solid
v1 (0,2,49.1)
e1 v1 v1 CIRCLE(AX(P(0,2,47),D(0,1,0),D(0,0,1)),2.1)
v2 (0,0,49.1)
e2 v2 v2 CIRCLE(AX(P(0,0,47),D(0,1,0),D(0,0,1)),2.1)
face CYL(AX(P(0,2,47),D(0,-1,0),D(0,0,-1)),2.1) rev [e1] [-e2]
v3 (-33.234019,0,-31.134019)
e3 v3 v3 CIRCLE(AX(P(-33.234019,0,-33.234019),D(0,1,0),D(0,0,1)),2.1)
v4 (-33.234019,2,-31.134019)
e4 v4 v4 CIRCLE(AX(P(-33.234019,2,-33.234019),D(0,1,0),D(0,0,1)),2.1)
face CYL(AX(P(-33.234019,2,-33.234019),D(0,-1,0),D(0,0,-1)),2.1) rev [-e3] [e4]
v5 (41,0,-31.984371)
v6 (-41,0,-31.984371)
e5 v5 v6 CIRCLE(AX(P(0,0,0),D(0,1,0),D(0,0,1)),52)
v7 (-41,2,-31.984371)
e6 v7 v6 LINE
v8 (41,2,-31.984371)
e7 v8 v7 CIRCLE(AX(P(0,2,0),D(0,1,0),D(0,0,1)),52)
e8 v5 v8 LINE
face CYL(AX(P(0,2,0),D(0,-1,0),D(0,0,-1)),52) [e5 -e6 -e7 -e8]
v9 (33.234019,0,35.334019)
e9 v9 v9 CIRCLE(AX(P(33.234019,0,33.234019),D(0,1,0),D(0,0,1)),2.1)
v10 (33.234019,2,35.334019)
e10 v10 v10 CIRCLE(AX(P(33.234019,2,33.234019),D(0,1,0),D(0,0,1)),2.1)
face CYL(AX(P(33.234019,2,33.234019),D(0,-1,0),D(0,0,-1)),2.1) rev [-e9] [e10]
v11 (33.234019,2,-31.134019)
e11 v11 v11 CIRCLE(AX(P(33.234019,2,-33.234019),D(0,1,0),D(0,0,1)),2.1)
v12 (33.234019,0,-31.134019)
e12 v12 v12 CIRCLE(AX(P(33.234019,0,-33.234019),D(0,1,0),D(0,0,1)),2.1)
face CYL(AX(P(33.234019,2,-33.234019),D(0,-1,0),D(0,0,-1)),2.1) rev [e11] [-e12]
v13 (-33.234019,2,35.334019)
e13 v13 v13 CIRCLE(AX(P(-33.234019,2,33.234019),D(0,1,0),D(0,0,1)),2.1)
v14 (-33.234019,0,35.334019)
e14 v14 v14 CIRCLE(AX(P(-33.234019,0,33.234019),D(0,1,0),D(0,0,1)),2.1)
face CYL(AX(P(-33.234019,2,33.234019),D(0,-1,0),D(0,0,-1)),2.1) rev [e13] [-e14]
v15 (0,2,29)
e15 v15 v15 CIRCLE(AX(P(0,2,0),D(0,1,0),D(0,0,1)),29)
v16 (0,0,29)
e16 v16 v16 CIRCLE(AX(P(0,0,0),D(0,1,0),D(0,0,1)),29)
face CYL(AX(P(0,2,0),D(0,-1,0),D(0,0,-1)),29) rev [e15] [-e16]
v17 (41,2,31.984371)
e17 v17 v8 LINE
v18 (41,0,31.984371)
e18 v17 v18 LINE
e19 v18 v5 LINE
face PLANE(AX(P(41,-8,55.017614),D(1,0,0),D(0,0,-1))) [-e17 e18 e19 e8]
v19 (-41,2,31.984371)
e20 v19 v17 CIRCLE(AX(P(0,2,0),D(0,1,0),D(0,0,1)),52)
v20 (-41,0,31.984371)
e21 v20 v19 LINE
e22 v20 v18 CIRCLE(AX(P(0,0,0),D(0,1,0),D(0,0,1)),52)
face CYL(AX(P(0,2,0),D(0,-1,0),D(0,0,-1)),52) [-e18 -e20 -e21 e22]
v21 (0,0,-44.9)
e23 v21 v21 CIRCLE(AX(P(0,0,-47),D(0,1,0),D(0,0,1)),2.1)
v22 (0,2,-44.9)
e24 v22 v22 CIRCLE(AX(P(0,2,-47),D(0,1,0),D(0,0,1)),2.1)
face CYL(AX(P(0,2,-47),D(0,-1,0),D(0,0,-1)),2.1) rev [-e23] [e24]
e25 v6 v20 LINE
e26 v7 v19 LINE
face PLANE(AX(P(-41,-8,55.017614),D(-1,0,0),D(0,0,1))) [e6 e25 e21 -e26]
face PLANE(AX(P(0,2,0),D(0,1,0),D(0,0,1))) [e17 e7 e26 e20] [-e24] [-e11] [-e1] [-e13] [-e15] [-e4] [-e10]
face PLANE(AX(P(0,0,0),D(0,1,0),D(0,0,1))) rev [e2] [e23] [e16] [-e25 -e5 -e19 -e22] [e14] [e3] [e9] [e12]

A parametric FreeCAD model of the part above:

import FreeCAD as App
import Part
import Sketcher

V = App.Vector
Q = App.Units.Quantity

doc = App.newDocument("Part")
params = doc.addObject("Spreadsheet::Sheet", "Params")
for row, (alias, value) in enumerate([
    ("sketch1_diameter", "104 mm"),
    ("sketch1_diameter2", "58 mm"),
    ("sketch1_diameter3", "4.2 mm"),
    ("pad1_length", "2 mm"),
    ("sketch2_width", "182 mm"),
    ("sketch2_width2", "82 mm"),
    ("pocket1_length", "10 mm"),
], start=1):
    params.set(f"A{row}", alias)
    params.set(f"B{row}", "=" + value)
    params.setAlias(f"B{row}", alias)

body = doc.addObject("PartDesign::Body", "Body")

# Sketch on XZ plane
sketch1 = body.newObject("Sketcher::SketchObject", "Sketch")
sketch1.AttachmentSupport = (doc.getObject("XZ_Plane"), [""])
sketch1.MapMode = "FlatFace"
sketch1.addGeometry([
    Part.Circle(V(0, 0, 0), V(0, 0, 1), 52),  # 0
    Part.Circle(V(-33.2, -33.2, 0), V(0, 0, 1), 2.1),  # 1
    Part.Circle(V(0, -47, 0), V(0, 0, 1), 2.1),  # 2
    Part.Circle(V(-47, 0, 0), V(0, 0, 1), 2.1),  # 3
    Part.Circle(V(-33.2, 33.2, 0), V(0, 0, 1), 2.1),  # 4
    Part.Circle(V(33.2, -33.2, 0), V(0, 0, 1), 2.1),  # 5
    Part.Circle(V(47, 0, 0), V(0, 0, 1), 2.1),  # 6
    Part.Circle(V(0, 0, 0), V(0, 0, 1), 29),  # 7
    Part.Circle(V(0, 47, 0), V(0, 0, 1), 2.1),  # 8
    Part.Circle(V(33.2, 33.2, 0), V(0, 0, 1), 2.1),  # 9
], False)
sketch1.addConstraint([
    Sketcher.Constraint("Coincident", 0, 3, -1, 1),
    Sketcher.Constraint("Coincident", 7, 3, -1, 1),
    Sketcher.Constraint("Equal", 1, 2),
    Sketcher.Constraint("Equal", 2, 3),
    Sketcher.Constraint("Equal", 3, 4),
    Sketcher.Constraint("Equal", 4, 5),
    Sketcher.Constraint("Equal", 5, 6),
    Sketcher.Constraint("Equal", 6, 8),
    Sketcher.Constraint("Equal", 8, 9),
    Sketcher.Constraint("Symmetric", 4, 3, 5, 3, -1, 1),
    Sketcher.Constraint("Symmetric", 3, 3, 6, 3, -1, 1),
    Sketcher.Constraint("Symmetric", 2, 3, 8, 3, -1, 1),
    Sketcher.Constraint("Symmetric", 1, 3, 9, 3, -1, 1),
    Sketcher.Constraint("Symmetric", 1, 3, 5, 3, -2),
    Sketcher.Constraint("PointOnObject", 2, 3, -2),
    Sketcher.Constraint("PointOnObject", 3, 3, -1),
    Sketcher.Constraint("Diameter", 0, Q("104 mm")),
    Sketcher.Constraint("Diameter", 7, Q("58 mm")),
    Sketcher.Constraint("Diameter", 1, Q("4.2 mm")),
    Sketcher.Constraint("DistanceY", 2, 3, -1, 1, Q("47 mm")),
    Sketcher.Constraint("DistanceX", 3, 3, -1, 1, Q("47 mm")),
    Sketcher.Constraint("DistanceX", 1, 3, -1, 1, Q("33.234019 mm")),
    Sketcher.Constraint("DistanceY", 1, 3, -1, 1, Q("33.234019 mm")),
])
sketch1.setExpression("Constraints[16]", "Params.sketch1_diameter")
sketch1.setExpression("Constraints[17]", "Params.sketch1_diameter2")
sketch1.setExpression("Constraints[18]", "Params.sketch1_diameter3")
pad1 = body.newObject("PartDesign::Pad", "Pad")
pad1.Profile = sketch1
pad1.setExpression("Length", "Params.pad1_length")
pad1.Reversed = True

# Sketch on XZ plane
sketch2 = body.newObject("Sketcher::SketchObject", "Sketch001")
sketch2.AttachmentSupport = (doc.getObject("XZ_Plane"), [""])
sketch2.MapMode = "FlatFace"
sketch2.AttachmentOffset = App.Placement(V(0, 0, -2), App.Rotation())
sketch2.addGeometry([
    Part.LineSegment(V(-91, -105, 0), V(-91, 105, 0)),  # 0
    Part.LineSegment(V(-91, 105, 0), V(91, 105, 0)),  # 1
    Part.LineSegment(V(91, 105, 0), V(91, -105, 0)),  # 2
    Part.LineSegment(V(91, -105, 0), V(-91, -105, 0)),  # 3
    Part.LineSegment(V(41, 55, 0), V(-41, 55, 0)),  # 4
    Part.LineSegment(V(-41, 55, 0), V(-41, -55, 0)),  # 5
    Part.LineSegment(V(-41, -55, 0), V(41, -55, 0)),  # 6
    Part.LineSegment(V(41, -55, 0), V(41, 55, 0)),  # 7
], False)
sketch2.addConstraint([
    Sketcher.Constraint("Coincident", 0, 2, 1, 1),
    Sketcher.Constraint("Coincident", 1, 2, 2, 1),
    Sketcher.Constraint("Coincident", 2, 2, 3, 1),
    Sketcher.Constraint("Coincident", 3, 2, 0, 1),
    Sketcher.Constraint("Coincident", 4, 2, 5, 1),
    Sketcher.Constraint("Coincident", 5, 2, 6, 1),
    Sketcher.Constraint("Coincident", 6, 2, 7, 1),
    Sketcher.Constraint("Coincident", 7, 2, 4, 1),
    Sketcher.Constraint("Vertical", 0),
    Sketcher.Constraint("Horizontal", 1),
    Sketcher.Constraint("Vertical", 2),
    Sketcher.Constraint("Horizontal", 3),
    Sketcher.Constraint("Horizontal", 4),
    Sketcher.Constraint("Vertical", 5),
    Sketcher.Constraint("Horizontal", 6),
    Sketcher.Constraint("Vertical", 7),
    Sketcher.Constraint("Symmetric", 0, 2, 2, 2, -1, 1),
    Sketcher.Constraint("Symmetric", 4, 2, 6, 2, -1, 1),
    Sketcher.Constraint("DistanceX", 1, 1, 1, 2, Q("182 mm")),
    Sketcher.Constraint("DistanceX", 4, 2, 4, 1, Q("82 mm")),
    Sketcher.Constraint("DistanceY", 4, 2, 0, 2, Q("50 mm")),
    Sketcher.Constraint("DistanceY", 0, 1, 0, 2, Q("210.035227 mm")),
])
sketch2.setExpression("Constraints[18]", "Params.sketch2_width")
sketch2.setExpression("Constraints[19]", "Params.sketch2_width2")
pocket1 = body.newObject("PartDesign::Pocket", "Pocket")
pocket1.Profile = sketch2
pocket1.setExpression("Length", "Params.pocket1_length")
pocket1.Reversed = True

doc.recompute()
